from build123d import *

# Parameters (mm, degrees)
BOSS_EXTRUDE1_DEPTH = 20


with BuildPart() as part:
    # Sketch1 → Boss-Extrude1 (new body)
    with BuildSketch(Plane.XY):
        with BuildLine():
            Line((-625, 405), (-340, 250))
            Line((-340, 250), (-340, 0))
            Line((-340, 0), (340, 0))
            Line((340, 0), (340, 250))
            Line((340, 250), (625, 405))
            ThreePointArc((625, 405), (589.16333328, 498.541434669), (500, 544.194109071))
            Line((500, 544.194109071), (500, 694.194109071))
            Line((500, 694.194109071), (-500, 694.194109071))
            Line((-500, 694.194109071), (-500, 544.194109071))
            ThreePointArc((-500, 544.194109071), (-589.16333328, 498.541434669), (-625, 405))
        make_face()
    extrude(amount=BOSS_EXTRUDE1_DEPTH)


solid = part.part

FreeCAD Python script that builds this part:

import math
import FreeCAD as App
import Part
import Sketcher
from FreeCAD import Vector
Q = App.Units.Quantity

doc = App.newDocument("Part")
body = doc.addObject("PartDesign::Body", "Body")

# Sketch on XY plane
sketch1 = body.newObject("Sketcher::SketchObject", "Sketch")
sketch1.AttachmentSupport = (doc.getObject("XY_Plane"), [""])
sketch1.MapMode = "FlatFace"
sketch1.addGeometry([
    Part.LineSegment(Vector(-625, 405, 0), Vector(-340, 250, 0)),  # 0
    Part.LineSegment(Vector(-340, 250, 0), Vector(-340, 0, 0)),  # 1
    Part.LineSegment(Vector(-340, 0, 0), Vector(340, 0, 0)),  # 2
    Part.LineSegment(Vector(340, 0, 0), Vector(340, 250, 0)),  # 3
    Part.LineSegment(Vector(340, 250, 0), Vector(625, 405, 0)),  # 4
    Part.ArcOfCircle(Part.Circle(Vector(485, 405, 0), Vector(0, 0, 1), 140), math.radians(0), math.radians(84)),  # 5
    Part.LineSegment(Vector(500, 544, 0), Vector(500, 694, 0)),  # 6
    Part.LineSegment(Vector(500, 694, 0), Vector(-500, 694, 0)),  # 7
    Part.LineSegment(Vector(-500, 694, 0), Vector(-500, 544, 0)),  # 8
    Part.ArcOfCircle(Part.Circle(Vector(-485, 405, 0), Vector(0, 0, 1), 140), math.radians(96), math.radians(180)),  # 9
], False)
sketch1.addConstraint([
    Sketcher.Constraint("Coincident", 0, 2, 1, 1),
    Sketcher.Constraint("Coincident", 1, 2, 2, 1),
    Sketcher.Constraint("Coincident", 2, 2, 3, 1),
    Sketcher.Constraint("Coincident", 3, 2, 4, 1),
    Sketcher.Constraint("Coincident", 4, 2, 5, 1),
    Sketcher.Constraint("Coincident", 5, 2, 6, 1),
    Sketcher.Constraint("Coincident", 6, 2, 7, 1),
    Sketcher.Constraint("Coincident", 7, 2, 8, 1),
    Sketcher.Constraint("Coincident", 8, 2, 9, 1),
    Sketcher.Constraint("Coincident", 9, 2, 0, 1),
    Sketcher.Constraint("Vertical", 1),
    Sketcher.Constraint("Horizontal", 2),
    Sketcher.Constraint("Vertical", 3),
    Sketcher.Constraint("Vertical", 6),
    Sketcher.Constraint("Horizontal", 7),
    Sketcher.Constraint("Vertical", 8),
    Sketcher.Constraint("Equal", 5, 9),
    Sketcher.Constraint("Symmetric", 1, 2, 2, 2, -1, 1),
    Sketcher.Constraint("Symmetric", 5, 3, 9, 3, -2),
    Sketcher.Constraint("Horizontal", 0, 2, 3, 2),
    Sketcher.Constraint("Horizontal", 9, 3, 4, 2),
    Sketcher.Constraint("Horizontal", 5, 2, 8, 2),
    Sketcher.Constraint("Horizontal", 4, 2, 9, 2),
    Sketcher.Constraint("Radius", 5, Q("140 mm")),
    Sketcher.Constraint("DistanceX", 2, 1, 2, 2, Q("680 mm")),
    Sketcher.Constraint("DistanceX", 7, 2, 7, 1, Q("1000 mm")),
    Sketcher.Constraint("DistanceY", 1, 2, 1, 1, Q("250 mm")),
    Sketcher.Constraint("DistanceY", 6, 1, 6, 2, Q("150 mm")),
    Sketcher.Constraint("DistanceX", -1, 1, 5, 3, Q("485 mm")),
    Sketcher.Constraint("DistanceY", -1, 1, 5, 3, Q("405 mm")),
])
pad1 = body.newObject("PartDesign::Pad", "Pad")
pad1.Profile = sketch1
pad1.Length = 20

doc.recompute()
